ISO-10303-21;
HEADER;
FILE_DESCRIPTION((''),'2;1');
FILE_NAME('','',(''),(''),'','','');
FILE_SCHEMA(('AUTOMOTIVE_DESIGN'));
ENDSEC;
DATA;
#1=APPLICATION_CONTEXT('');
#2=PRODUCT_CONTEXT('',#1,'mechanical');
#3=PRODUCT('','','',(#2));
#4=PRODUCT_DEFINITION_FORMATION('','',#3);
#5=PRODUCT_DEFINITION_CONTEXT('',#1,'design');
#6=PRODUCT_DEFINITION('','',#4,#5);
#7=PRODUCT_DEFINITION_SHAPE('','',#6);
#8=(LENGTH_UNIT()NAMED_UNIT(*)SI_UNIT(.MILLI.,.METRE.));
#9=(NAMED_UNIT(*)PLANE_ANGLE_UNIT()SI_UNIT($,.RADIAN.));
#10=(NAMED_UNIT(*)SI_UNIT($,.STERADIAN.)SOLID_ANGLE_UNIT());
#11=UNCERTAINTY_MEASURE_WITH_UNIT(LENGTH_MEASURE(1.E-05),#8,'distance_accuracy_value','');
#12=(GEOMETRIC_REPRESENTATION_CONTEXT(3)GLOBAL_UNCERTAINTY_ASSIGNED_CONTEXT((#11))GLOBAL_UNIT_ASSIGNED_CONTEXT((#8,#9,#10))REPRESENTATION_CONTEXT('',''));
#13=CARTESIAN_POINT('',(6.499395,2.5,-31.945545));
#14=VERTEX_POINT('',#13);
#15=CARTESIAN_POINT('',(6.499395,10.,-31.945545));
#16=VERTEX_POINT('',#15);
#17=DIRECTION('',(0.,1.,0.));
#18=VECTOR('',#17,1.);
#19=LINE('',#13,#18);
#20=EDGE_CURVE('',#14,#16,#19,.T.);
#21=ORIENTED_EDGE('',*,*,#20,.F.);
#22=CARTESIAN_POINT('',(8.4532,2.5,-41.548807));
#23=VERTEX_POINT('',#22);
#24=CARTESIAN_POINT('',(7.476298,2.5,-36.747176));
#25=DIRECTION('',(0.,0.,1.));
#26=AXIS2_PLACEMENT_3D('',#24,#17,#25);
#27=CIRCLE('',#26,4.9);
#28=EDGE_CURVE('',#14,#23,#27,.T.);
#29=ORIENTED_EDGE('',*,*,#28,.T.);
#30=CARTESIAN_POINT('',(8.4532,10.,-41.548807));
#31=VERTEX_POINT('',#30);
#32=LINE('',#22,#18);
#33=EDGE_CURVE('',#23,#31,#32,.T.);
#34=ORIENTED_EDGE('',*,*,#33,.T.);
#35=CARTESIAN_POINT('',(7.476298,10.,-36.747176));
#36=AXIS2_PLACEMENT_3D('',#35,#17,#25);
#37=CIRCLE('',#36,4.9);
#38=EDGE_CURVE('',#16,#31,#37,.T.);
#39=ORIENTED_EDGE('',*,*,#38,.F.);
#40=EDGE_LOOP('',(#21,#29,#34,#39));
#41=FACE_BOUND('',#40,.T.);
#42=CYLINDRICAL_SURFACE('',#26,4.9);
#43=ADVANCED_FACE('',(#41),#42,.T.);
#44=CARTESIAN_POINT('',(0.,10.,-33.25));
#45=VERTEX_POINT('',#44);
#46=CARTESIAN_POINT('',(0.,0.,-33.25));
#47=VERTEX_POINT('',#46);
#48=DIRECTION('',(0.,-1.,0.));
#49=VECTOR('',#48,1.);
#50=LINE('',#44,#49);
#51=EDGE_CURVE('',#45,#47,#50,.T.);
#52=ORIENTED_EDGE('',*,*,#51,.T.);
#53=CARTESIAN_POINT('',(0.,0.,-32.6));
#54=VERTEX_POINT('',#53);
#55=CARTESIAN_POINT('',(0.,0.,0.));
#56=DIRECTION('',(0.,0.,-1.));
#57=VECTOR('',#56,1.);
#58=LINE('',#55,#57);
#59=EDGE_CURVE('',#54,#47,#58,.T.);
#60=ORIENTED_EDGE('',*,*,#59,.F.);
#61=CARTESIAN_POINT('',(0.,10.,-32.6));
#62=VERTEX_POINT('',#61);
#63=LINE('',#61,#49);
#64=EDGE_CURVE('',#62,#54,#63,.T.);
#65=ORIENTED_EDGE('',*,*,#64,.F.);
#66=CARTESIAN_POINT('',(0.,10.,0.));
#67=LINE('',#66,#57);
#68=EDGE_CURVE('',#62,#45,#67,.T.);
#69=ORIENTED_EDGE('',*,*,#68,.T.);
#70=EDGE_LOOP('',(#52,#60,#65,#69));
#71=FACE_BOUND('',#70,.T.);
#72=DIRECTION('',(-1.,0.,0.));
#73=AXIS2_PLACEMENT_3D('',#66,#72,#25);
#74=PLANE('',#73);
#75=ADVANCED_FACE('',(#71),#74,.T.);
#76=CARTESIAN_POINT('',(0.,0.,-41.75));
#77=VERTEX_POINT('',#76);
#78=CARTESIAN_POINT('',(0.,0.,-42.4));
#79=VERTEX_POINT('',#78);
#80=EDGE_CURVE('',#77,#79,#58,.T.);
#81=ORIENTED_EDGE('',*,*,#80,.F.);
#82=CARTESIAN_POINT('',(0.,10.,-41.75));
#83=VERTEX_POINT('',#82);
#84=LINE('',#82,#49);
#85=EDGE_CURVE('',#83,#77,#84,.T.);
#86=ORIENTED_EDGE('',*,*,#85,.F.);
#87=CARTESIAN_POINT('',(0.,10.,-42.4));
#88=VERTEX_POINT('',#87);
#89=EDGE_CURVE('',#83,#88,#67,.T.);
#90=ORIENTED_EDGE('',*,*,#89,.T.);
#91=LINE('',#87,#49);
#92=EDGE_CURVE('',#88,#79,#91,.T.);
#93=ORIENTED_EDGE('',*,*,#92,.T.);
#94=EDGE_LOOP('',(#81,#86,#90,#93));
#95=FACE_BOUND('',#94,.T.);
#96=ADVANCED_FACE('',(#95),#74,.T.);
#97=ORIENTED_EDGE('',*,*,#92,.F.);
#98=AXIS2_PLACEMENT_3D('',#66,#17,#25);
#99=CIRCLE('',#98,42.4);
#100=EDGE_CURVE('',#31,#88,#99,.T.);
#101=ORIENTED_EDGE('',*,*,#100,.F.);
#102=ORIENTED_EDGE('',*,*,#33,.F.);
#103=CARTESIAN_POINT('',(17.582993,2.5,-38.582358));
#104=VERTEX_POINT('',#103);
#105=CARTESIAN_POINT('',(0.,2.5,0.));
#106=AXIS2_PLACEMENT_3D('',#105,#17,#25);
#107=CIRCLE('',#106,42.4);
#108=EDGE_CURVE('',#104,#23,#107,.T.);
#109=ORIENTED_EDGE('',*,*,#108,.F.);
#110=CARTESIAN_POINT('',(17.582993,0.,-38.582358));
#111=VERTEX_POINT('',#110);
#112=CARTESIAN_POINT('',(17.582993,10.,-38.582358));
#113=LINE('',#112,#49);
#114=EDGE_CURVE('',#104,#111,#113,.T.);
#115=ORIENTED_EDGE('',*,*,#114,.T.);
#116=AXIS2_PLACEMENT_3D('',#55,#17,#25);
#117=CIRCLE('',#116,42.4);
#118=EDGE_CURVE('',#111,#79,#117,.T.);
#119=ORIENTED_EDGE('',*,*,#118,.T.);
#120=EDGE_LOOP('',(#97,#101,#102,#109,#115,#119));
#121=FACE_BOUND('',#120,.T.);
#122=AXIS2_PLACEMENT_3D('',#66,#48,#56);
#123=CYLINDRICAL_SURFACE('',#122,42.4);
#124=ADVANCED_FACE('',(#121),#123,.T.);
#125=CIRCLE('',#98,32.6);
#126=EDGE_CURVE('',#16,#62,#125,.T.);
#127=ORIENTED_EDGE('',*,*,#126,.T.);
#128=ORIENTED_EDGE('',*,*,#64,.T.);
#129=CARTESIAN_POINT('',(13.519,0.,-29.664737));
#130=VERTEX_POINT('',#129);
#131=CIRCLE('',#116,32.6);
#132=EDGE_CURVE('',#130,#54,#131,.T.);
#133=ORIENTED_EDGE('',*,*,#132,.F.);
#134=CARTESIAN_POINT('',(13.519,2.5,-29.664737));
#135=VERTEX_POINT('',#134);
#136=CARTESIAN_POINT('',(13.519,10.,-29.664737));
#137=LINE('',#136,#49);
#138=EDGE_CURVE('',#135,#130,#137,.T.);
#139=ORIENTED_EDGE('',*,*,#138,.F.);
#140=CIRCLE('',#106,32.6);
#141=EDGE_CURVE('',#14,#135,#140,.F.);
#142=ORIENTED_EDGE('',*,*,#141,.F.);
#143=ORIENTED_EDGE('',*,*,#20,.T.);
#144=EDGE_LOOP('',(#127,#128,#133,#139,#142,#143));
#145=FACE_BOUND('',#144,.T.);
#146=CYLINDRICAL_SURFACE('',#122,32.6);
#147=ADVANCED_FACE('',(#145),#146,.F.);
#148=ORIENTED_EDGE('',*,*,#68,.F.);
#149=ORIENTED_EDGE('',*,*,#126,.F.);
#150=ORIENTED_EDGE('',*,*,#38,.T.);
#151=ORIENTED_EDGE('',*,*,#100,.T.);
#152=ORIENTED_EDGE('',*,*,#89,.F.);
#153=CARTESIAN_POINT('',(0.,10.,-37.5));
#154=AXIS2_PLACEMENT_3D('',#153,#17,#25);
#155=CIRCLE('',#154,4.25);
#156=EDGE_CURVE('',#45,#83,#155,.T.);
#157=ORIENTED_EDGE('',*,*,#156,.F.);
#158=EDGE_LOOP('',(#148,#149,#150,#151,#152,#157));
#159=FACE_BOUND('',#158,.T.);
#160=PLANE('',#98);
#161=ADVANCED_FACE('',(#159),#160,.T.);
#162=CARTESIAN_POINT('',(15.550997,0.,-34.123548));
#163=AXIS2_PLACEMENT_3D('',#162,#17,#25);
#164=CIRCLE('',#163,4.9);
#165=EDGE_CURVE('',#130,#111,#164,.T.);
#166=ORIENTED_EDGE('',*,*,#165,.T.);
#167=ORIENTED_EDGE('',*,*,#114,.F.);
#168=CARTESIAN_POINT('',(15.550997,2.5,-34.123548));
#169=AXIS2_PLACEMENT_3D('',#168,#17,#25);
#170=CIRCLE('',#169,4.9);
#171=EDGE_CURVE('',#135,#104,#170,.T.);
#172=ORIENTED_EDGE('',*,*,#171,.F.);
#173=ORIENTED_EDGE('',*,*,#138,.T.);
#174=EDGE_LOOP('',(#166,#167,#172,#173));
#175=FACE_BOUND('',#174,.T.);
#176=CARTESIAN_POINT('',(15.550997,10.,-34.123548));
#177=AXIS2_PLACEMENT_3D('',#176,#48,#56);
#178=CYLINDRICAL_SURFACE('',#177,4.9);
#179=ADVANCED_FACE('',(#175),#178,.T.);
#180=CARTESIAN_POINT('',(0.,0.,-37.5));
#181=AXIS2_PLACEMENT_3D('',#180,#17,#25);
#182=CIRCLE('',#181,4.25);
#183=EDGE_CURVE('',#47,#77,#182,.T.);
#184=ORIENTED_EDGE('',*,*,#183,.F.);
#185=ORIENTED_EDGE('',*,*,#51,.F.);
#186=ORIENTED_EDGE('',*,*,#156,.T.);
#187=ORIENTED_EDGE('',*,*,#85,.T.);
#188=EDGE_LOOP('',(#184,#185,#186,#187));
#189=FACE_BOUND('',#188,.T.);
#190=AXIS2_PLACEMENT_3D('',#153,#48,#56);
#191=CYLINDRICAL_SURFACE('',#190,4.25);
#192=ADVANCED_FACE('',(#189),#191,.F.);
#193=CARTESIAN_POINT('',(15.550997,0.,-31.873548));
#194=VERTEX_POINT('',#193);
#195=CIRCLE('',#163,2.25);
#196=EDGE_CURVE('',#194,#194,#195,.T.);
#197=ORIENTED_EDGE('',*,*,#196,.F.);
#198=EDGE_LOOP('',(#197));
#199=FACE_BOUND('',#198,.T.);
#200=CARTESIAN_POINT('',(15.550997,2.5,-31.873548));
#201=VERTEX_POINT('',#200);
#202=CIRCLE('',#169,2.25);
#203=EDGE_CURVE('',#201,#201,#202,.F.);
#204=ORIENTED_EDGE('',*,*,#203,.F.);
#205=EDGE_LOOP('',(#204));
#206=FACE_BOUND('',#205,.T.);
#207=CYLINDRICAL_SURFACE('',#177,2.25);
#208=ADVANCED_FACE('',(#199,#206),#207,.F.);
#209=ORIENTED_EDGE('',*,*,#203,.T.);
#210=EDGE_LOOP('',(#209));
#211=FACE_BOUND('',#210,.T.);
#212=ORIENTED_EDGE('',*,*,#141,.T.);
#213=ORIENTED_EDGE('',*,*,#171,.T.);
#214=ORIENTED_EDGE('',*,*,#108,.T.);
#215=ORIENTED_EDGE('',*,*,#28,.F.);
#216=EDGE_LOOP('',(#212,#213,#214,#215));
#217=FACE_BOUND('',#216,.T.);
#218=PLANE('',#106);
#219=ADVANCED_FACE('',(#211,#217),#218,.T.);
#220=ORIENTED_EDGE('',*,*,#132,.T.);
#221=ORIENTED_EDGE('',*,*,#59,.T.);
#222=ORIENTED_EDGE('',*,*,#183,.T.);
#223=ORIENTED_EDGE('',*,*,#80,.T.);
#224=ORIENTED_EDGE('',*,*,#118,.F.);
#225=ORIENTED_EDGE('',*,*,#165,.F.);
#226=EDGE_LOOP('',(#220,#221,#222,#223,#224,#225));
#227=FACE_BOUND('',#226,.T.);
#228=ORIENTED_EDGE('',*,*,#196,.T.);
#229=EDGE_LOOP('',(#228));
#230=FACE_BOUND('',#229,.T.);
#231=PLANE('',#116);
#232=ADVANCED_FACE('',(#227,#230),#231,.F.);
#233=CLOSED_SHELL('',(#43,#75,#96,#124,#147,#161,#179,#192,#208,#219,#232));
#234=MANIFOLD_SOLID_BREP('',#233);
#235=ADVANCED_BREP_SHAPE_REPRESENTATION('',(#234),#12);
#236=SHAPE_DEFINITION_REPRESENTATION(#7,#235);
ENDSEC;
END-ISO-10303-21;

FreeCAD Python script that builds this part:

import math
import FreeCAD as App
import Part
import Sketcher

V = App.Vector

doc = App.newDocument("Part")
body = doc.addObject("PartDesign::Body", "Body")

sketch1 = body.newObject("Sketcher::SketchObject", "Sketch")
sketch1.AttachmentSupport = (doc.getObject("XZ_Plane"), [""])
sketch1.MapMode = "FlatFace"
sketch1.addGeometry([
    Part.ArcOfCircle(Part.Circle(V(0, 0, 0), V(0, 0, 1), 32.6), math.radians(-78.5), math.radians(-65.5)),
    Part.ArcOfCircle(Part.Circle(V(15.6, -34.1, 0), V(0, 0, 1), 4.9), math.radians(-65), math.radians(114)),
    Part.ArcOfCircle(Part.Circle(V(0, 0, 0), V(0, 0, 1), 42.4), math.radians(-78.5), math.radians(-65.5)),
    Part.ArcOfCircle(Part.Circle(V(0, 0, 0), V(0, 0, 1), 42.4), math.radians(-90), math.radians(-78.5)),
    Part.LineSegment(V(0, -42.4, 0), V(0, -41.8, 0)),
    Part.ArcOfCircle(Part.Circle(V(0, -37.5, 0), V(0, 0, 1), 4.2), math.radians(-90), math.radians(0)),
    Part.ArcOfCircle(Part.Circle(V(0, -37.5, 0), V(0, 0, 1), 4.2), math.radians(0), math.radians(90)),
    Part.LineSegment(V(0, -33.2, 0), V(0, -32.6, 0)),
    Part.ArcOfCircle(Part.Circle(V(0, 0, 0), V(0, 0, 1), 32.6), math.radians(-90), math.radians(-78.5)),
    Part.Circle(V(15.6, -34.1, 0), V(0, 0, 1), 2.2),
], False)
sketch1.addConstraint([
    Sketcher.Constraint("Tangent", 0, 2, 1, 2),
    Sketcher.Constraint("Tangent", 1, 1, 2, 2),
    Sketcher.Constraint("Tangent", 2, 1, 3, 2),
    Sketcher.Constraint("Coincident", 3, 1, 4, 1),
    Sketcher.Constraint("Coincident", 4, 2, 5, 1),
    Sketcher.Constraint("Tangent", 5, 2, 6, 1),
    Sketcher.Constraint("Coincident", 6, 2, 7, 1),
    Sketcher.Constraint("Coincident", 7, 2, 8, 1),
    Sketcher.Constraint("Tangent", 8, 2, 0, 1),
    Sketcher.Constraint("Vertical", 4),
    Sketcher.Constraint("Vertical", 7),
    Sketcher.Constraint("Coincident", 0, 3, -1, 1),
    Sketcher.Constraint("Coincident", 2, 3, -1, 1),
    Sketcher.Constraint("Coincident", 9, 3, 1, 3),
    Sketcher.Constraint("Equal", 2, 3),
    Sketcher.Constraint("Equal", 5, 6),
    Sketcher.Constraint("Equal", 0, 8),
    Sketcher.Constraint("PointOnObject", 5, 3, -2),
    Sketcher.Constraint("PointOnObject", 3, 1, -2),
    Sketcher.Constraint("PointOnObject", 6, 2, -2),
    Sketcher.Constraint("Horizontal", 6, 3, 5, 2),
    Sketcher.Constraint("Equal", 4, 7),
    Sketcher.Constraint("Diameter", 9, 4.5),
    Sketcher.Constraint("Radius", 0, 32.6),
    Sketcher.Constraint("Radius", 1, 4.9),
    Sketcher.Constraint("Radius", 5, 4.25),
    Sketcher.Constraint("DistanceX", -1, 1, 0, 2, 13.519),
    Sketcher.Constraint("DistanceX", -1, 1, 2, 1, 8.4532),
    Sketcher.Constraint("DistanceY", 8, 2, 0, 2, 2.280808),
])
pad1 = body.newObject("PartDesign::Pad", "Pad")
pad1.Profile = sketch1
pad1.Length = 10
pad1.Reversed = True

sketch2 = body.newObject("Sketcher::SketchObject", "Sketch001")
sketch2.AttachmentSupport = (doc.getObject("XZ_Plane"), [""])
sketch2.MapMode = "FlatFace"
sketch2.AttachmentOffset = App.Placement(V(0, 0, -2.5), App.Rotation())
sketch2.addGeometry([
    Part.ArcOfCircle(Part.Circle(V(15.6, -34.1, 0), V(0, 0, 1), 4.9), math.radians(-65), math.radians(114)),
    Part.ArcOfCircle(Part.Circle(V(0, 0, 0), V(0, 0, 1), 42.4), math.radians(-78.5), math.radians(-65.5)),
    Part.ArcOfCircle(Part.Circle(V(7.5, -36.7, 0), V(0, 0, 1), 4.9), math.radians(-78), math.radians(102)),
    Part.ArcOfCircle(Part.Circle(V(0, 0, 0), V(0, 0, 1), 32.6), math.radians(-78.5), math.radians(-65.5)),
    Part.Circle(V(15.6, -34.1, 0), V(0, 0, 1), 2.2),
], False)
sketch2.addConstraint([
    Sketcher.Constraint("Tangent", 0, 1, 1, 2),
    Sketcher.Constraint("Tangent", 1, 1, 2, 1),
    Sketcher.Constraint("Tangent", 2, 2, 3, 1),
    Sketcher.Constraint("Tangent", 3, 2, 0, 2),
    Sketcher.Constraint("Coincident", 1, 3, -1, 1),
    Sketcher.Constraint("Coincident", 3, 3, -1, 1),
    Sketcher.Constraint("Coincident", 4, 3, 0, 3),
    Sketcher.Constraint("Diameter", 4, 4.5),
    Sketcher.Constraint("Radius", 0, 4.9),
    Sketcher.Constraint("Radius", 1, 42.4),
    Sketcher.Constraint("DistanceX", -1, 1, 3, 2, 13.519),
    Sketcher.Constraint("DistanceX", -1, 1, 1, 1, 8.4532),
])
pocket1 = body.newObject("PartDesign::Pocket", "Pocket")
pocket1.Profile = sketch2
pocket1.Length = 7.5

doc.recompute()
